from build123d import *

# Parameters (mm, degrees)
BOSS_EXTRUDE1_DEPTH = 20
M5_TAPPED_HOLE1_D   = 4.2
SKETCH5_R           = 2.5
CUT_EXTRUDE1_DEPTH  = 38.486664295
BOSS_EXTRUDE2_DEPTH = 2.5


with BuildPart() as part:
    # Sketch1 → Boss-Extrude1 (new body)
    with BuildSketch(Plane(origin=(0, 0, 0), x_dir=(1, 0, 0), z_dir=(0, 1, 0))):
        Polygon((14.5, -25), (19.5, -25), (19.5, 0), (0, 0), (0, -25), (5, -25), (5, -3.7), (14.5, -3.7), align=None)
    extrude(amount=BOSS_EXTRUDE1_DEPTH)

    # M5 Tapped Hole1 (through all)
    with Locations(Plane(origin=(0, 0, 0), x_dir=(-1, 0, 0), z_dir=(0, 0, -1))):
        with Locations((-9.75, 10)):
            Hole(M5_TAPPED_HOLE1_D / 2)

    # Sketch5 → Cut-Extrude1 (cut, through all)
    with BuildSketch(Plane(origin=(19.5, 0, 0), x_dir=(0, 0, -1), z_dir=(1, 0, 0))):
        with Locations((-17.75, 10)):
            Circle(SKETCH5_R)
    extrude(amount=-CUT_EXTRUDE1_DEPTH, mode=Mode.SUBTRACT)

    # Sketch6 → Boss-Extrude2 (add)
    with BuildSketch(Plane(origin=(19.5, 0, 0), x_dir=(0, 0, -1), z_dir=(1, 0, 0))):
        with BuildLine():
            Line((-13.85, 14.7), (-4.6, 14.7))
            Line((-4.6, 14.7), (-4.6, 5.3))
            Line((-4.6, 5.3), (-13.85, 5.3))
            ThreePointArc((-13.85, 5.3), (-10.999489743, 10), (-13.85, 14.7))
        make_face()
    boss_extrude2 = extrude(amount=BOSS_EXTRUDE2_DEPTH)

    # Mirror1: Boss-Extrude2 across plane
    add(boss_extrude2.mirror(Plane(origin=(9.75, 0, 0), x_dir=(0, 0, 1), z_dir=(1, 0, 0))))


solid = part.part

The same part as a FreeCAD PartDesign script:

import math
import FreeCAD as App
import Part
import Sketcher

V = App.Vector
Q = App.Units.Quantity

doc = App.newDocument("Part")
body = doc.addObject("PartDesign::Body", "Body")

sketch1 = doc.addObject("Sketcher::SketchObject", "Sketch")
body.addObject(sketch1)
sketch1.AttachmentSupport = (doc.XZ_Plane, [""])
sketch1.MapMode = "FlatFace"
sketch1.addGeometry(Part.LineSegment(V(14.5, 25, 0), V(19.5, 25, 0)), False)
sketch1.addGeometry(Part.LineSegment(V(19.5, 25, 0), V(19.5, 0, 0)), False)
sketch1.addGeometry(Part.LineSegment(V(19.5, 0, 0), V(0, 0, 0)), False)
sketch1.addGeometry(Part.LineSegment(V(0, 0, 0), V(0, 25, 0)), False)
sketch1.addGeometry(Part.LineSegment(V(0, 25, 0), V(5, 25, 0)), False)
sketch1.addGeometry(Part.LineSegment(V(5, 25, 0), V(5, 3.7, 0)), False)
sketch1.addGeometry(Part.LineSegment(V(5, 3.7, 0), V(14.5, 3.7, 0)), False)
sketch1.addGeometry(Part.LineSegment(V(14.5, 3.7, 0), V(14.5, 25, 0)), False)
sketch1.addConstraint(Sketcher.Constraint("Coincident", 0, 2, 1, 1))
sketch1.addConstraint(Sketcher.Constraint("Coincident", 1, 2, 2, 1))
sketch1.addConstraint(Sketcher.Constraint("Coincident", 2, 2, 3, 1))
sketch1.addConstraint(Sketcher.Constraint("Coincident", 3, 2, 4, 1))
sketch1.addConstraint(Sketcher.Constraint("Coincident", 4, 2, 5, 1))
sketch1.addConstraint(Sketcher.Constraint("Coincident", 5, 2, 6, 1))
sketch1.addConstraint(Sketcher.Constraint("Coincident", 6, 2, 7, 1))
sketch1.addConstraint(Sketcher.Constraint("Coincident", 7, 2, 0, 1))
sketch1.addConstraint(Sketcher.Constraint("Horizontal", 0))
sketch1.addConstraint(Sketcher.Constraint("Vertical", 1))
sketch1.addConstraint(Sketcher.Constraint("Horizontal", 2))
sketch1.addConstraint(Sketcher.Constraint("Vertical", 3))
sketch1.addConstraint(Sketcher.Constraint("Horizontal", 4))
sketch1.addConstraint(Sketcher.Constraint("Vertical", 5))
sketch1.addConstraint(Sketcher.Constraint("Horizontal", 6))
sketch1.addConstraint(Sketcher.Constraint("Vertical", 7))
sketch1.addConstraint(Sketcher.Constraint("Coincident", 2, 2, -1, 1))
sketch1.addConstraint(Sketcher.Constraint("Horizontal", 0, 2, 3, 2))
sketch1.addConstraint(Sketcher.Constraint("Equal", 0, 4))
sketch1.addConstraint(Sketcher.Constraint("DistanceX", 0, 1, 0, 2, Q("5 mm")))
sketch1.addConstraint(Sketcher.Constraint("DistanceY", 1, 2, 1, 1, Q("25 mm")))
sketch1.addConstraint(Sketcher.Constraint("DistanceX", 2, 2, 2, 1, Q("19.5 mm")))
sketch1.addConstraint(Sketcher.Constraint("DistanceY", 5, 2, 5, 1, Q("21.3 mm")))
pad1 = doc.addObject("PartDesign::Pad", "Pad")
body.addObject(pad1)
pad1.Profile = sketch1
pad1.Length = 20
pad1.Reversed = True

sketch2 = doc.addObject("Sketcher::SketchObject", "Sketch001")
body.addObject(sketch2)
sketch2.AttachmentSupport = (doc.XY_Plane, [""])
sketch2.MapMode = "FlatFace"
sketch2.addGeometry(Part.Circle(V(9.75, 10, 0), V(0, 0, 1), 2.1), False)
sketch2.addConstraint(Sketcher.Constraint("Diameter", 0, Q("4.2 mm")))
sketch2.addConstraint(Sketcher.Constraint("DistanceY", -1, 1, 0, 3, Q("10 mm")))
sketch2.addConstraint(Sketcher.Constraint("DistanceX", -1, 1, 0, 3, Q("9.75 mm")))
doc.recompute()
hole = doc.addObject("PartDesign::Hole", "Hole")
body.addObject(hole)
hole.Profile = sketch2
hole.ThreadType = "None"
hole.Diameter = 4.2
hole.DepthType = "ThroughAll"
hole.Reversed = True

sketch3 = doc.addObject("Sketcher::SketchObject", "Sketch002")
body.addObject(sketch3)
sketch3.AttachmentSupport = (doc.YZ_Plane, [""])
sketch3.MapMode = "FlatFace"
sketch3.AttachmentOffset = App.Placement(V(0, 0, 19.5), App.Rotation())
sketch3.addGeometry(Part.Circle(V(10, 17.75, 0), V(0, 0, 1), 2.5), False)
sketch3.addConstraint(Sketcher.Constraint("Diameter", 0, Q("5 mm")))
sketch3.addConstraint(Sketcher.Constraint("DistanceX", -1, 1, 0, 3, Q("10 mm")))
sketch3.addConstraint(Sketcher.Constraint("DistanceY", -1, 1, 0, 3, Q("17.75 mm")))
pocket1 = doc.addObject("PartDesign::Pocket", "Pocket")
body.addObject(pocket1)
pocket1.Profile = sketch3
pocket1.Type = "ThroughAll"

sketch4 = doc.addObject("Sketcher::SketchObject", "Sketch003")
body.addObject(sketch4)
sketch4.AttachmentSupport = (doc.YZ_Plane, [""])
sketch4.MapMode = "FlatFace"
sketch4.AttachmentOffset = App.Placement(V(0, 0, 19.5), App.Rotation())
sketch4.addGeometry(Part.LineSegment(V(14.7, 4.6, 0), V(14.7, 13.85, 0)), False)
sketch4.addGeometry(Part.ArcOfCircle(Part.Circle(V(10, 16.29949, 0), V(0, 0, 1), 5.3), math.radians(-152.472915), math.radians(-27.527085)), False)
sketch4.addGeometry(Part.LineSegment(V(5.3, 13.85, 0), V(5.3, 4.6, 0)), False)
sketch4.addGeometry(Part.LineSegment(V(5.3, 4.6, 0), V(14.7, 4.6, 0)), False)
sketch4.addConstraint(Sketcher.Constraint("Coincident", 0, 2, 1, 2))
sketch4.addConstraint(Sketcher.Constraint("Coincident", 1, 1, 2, 1))
sketch4.addConstraint(Sketcher.Constraint("Coincident", 2, 2, 3, 1))
sketch4.addConstraint(Sketcher.Constraint("Coincident", 3, 2, 0, 1))
sketch4.addConstraint(Sketcher.Constraint("Vertical", 0))
sketch4.addConstraint(Sketcher.Constraint("Vertical", 2))
sketch4.addConstraint(Sketcher.Constraint("Horizontal", 3))
sketch4.addConstraint(Sketcher.Constraint("Horizontal", 0, 2, 1, 1))
sketch4.addConstraint(Sketcher.Constraint("Radius", 1, Q("5.3 mm")))
sketch4.addConstraint(Sketcher.Constraint("DistanceX", 3, 1, 3, 2, Q("9.4 mm")))
sketch4.addConstraint(Sketcher.Constraint("DistanceX", -1, 1, 1, 3, Q("10 mm")))
sketch4.addConstraint(Sketcher.Constraint("DistanceY", 0, 1, 0, 2, Q("9.25 mm")))
sketch4.addConstraint(Sketcher.Constraint("DistanceY", -1, 1, 2, 2, Q("4.6 mm")))
pad2 = doc.addObject("PartDesign::Pad", "Pad001")
body.addObject(pad2)
pad2.Profile = sketch4
pad2.Length = 2.5
doc.recompute()

datumplane = doc.addObject("PartDesign::Plane", "DatumPlane")
body.addObject(datumplane)
datumplane.AttachmentSupport = (doc.YZ_Plane, [""])
datumplane.MapMode = "FlatFace"
datumplane.AttachmentOffset = App.Placement(V(0, 0, 9.75), App.Rotation())
mirrored = doc.addObject("PartDesign::Mirrored", "Mirrored")
body.addObject(mirrored)
mirrored.Originals = [pad2]
mirrored.MirrorPlane = (datumplane, [""])
body.Tip = mirrored

doc.recompute()
